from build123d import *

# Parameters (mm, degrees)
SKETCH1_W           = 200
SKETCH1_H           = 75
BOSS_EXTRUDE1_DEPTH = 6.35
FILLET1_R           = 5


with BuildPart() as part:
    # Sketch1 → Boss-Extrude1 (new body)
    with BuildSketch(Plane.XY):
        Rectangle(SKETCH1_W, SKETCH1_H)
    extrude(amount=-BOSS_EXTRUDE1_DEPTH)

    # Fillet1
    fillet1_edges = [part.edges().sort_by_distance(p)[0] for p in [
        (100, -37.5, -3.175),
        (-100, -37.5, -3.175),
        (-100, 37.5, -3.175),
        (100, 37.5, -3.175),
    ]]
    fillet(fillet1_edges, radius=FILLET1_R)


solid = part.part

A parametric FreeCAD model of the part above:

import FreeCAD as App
import Part
import Sketcher


def edges_at(feature, points):
    """Names of the edges that pass closest to the given points."""
    edges = feature.Shape.Edges
    near = lambda p: min(range(len(edges)), key=lambda i: edges[i].distToShape(Part.Vertex(*p))[0])
    return sorted({f"Edge{near(p) + 1}" for p in points})


def add_polygon(sketch, points):
    """Adds a closed chain of lines whose ends are joined by coincident constraints."""
    first, n = sketch.GeometryCount, len(points)
    for a, b in zip(points, points[1:] + points[:1]):
        sketch.addGeometry(Part.LineSegment(App.Vector(*a, 0), App.Vector(*b, 0)), False)
    for i in range(n):
        sketch.addConstraint(Sketcher.Constraint("Coincident", first + i, 2, first + (i + 1) % n, 1))

doc = App.newDocument("Part")
body = doc.addObject("PartDesign::Body", "Body")

sketch1 = body.newObject("Sketcher::SketchObject", "Sketch")
sketch1.AttachmentSupport = (doc.getObject("XY_Plane"), [""])
sketch1.MapMode = "FlatFace"
add_polygon(sketch1, [(-100, 37.5), (-100, -37.5), (100, -37.5), (100, 37.5)])
sketch1.addConstraint(Sketcher.Constraint("Vertical", 0))
sketch1.addConstraint(Sketcher.Constraint("Horizontal", 1))
sketch1.addConstraint(Sketcher.Constraint("Vertical", 2))
sketch1.addConstraint(Sketcher.Constraint("Horizontal", 3))
sketch1.addConstraint(Sketcher.Constraint("Symmetric", 0, 2, 2, 2, -1, 1))
sketch1.addConstraint(Sketcher.Constraint("DistanceX", 1, 1, 1, 2, 200.0))
sketch1.addConstraint(Sketcher.Constraint("DistanceY", 0, 2, 0, 1, 75.0))
pad1 = body.newObject("PartDesign::Pad", "Pad")
pad1.Profile = sketch1
pad1.Length = 6.35
pad1.Reversed = True
doc.recompute()

fillet = body.newObject("PartDesign::Fillet", "Fillet")
fillet.Base = (pad1, edges_at(pad1, [
    (100, -37.5, -3.175),
    (-100, -37.5, -3.175),
    (-100, 37.5, -3.175),
    (100, 37.5, -3.175),
]))
fillet.Radius = 5

doc.recompute()
